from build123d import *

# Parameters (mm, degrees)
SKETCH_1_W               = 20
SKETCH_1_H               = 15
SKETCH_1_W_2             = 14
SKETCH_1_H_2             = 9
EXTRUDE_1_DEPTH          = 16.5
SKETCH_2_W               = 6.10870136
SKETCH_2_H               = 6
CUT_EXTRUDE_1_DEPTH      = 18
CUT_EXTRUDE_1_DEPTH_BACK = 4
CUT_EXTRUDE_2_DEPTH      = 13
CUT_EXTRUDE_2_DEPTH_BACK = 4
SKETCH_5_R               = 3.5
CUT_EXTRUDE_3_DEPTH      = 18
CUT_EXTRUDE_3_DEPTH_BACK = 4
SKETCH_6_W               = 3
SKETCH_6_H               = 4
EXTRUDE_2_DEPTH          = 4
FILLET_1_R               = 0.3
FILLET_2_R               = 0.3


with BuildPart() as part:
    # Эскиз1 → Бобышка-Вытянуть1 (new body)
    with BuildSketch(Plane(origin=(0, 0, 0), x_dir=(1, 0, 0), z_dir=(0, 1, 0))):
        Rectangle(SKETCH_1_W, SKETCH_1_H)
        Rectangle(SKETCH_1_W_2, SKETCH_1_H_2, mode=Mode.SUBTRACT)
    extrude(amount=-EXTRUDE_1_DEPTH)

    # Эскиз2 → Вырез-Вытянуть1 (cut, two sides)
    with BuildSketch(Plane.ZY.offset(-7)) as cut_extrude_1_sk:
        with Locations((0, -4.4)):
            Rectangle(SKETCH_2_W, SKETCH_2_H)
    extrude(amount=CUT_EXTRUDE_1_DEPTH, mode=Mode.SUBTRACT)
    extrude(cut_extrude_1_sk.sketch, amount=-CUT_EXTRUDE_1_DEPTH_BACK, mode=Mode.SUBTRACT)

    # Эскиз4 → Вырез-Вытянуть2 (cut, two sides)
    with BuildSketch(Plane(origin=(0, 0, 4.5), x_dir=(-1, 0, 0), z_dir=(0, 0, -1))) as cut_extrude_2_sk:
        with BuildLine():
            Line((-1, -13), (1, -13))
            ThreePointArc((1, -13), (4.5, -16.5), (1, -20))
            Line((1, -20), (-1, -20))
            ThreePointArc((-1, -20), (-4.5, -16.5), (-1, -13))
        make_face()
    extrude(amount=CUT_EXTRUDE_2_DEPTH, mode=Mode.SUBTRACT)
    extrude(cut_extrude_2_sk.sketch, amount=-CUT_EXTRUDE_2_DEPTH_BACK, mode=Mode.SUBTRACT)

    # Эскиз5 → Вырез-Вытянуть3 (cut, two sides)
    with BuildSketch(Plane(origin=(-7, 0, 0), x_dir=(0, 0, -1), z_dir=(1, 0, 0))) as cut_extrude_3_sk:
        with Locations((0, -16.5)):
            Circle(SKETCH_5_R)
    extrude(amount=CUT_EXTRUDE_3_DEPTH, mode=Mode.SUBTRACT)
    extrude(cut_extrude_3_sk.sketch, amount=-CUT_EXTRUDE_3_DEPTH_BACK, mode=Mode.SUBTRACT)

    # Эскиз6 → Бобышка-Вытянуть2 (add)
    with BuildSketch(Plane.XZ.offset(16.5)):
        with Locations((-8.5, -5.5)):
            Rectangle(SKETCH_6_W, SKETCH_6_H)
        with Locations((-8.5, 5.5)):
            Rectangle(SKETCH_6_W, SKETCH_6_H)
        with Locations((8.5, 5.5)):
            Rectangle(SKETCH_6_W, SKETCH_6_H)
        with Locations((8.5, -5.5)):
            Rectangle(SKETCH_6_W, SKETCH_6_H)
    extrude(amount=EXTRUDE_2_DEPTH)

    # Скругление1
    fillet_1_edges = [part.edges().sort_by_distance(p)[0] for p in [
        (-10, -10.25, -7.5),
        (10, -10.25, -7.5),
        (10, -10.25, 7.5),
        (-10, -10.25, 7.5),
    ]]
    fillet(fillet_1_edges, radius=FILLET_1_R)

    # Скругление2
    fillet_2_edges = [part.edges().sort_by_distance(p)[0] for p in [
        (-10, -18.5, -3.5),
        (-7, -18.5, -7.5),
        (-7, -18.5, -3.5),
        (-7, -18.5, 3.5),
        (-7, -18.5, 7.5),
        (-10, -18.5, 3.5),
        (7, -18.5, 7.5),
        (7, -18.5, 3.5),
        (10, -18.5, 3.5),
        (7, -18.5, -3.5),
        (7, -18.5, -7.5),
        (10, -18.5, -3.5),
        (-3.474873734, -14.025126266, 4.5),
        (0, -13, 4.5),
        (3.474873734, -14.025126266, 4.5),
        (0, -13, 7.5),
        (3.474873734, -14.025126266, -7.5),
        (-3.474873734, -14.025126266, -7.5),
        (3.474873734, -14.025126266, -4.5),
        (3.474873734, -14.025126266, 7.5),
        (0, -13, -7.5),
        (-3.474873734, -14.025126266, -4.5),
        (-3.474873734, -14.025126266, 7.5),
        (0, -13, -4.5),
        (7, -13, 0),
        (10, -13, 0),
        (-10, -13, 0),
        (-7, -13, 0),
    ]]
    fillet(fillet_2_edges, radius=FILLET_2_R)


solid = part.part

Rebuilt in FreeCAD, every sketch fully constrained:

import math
import FreeCAD as App
import Part
import Sketcher
Q = App.Units.Quantity


def edges_at(feature, points):
    """Names of the edges that pass closest to the given points."""
    edges = feature.Shape.Edges
    near = lambda p: min(range(len(edges)), key=lambda i: edges[i].distToShape(Part.Vertex(*p))[0])
    return sorted({f"Edge{near(p) + 1}" for p in points})

doc = App.newDocument("Part")
body = doc.addObject("PartDesign::Body", "Body")

sketch1 = doc.addObject("Sketcher::SketchObject", "Sketch")
body.addObject(sketch1)
sketch1.AttachmentSupport = (doc.XZ_Plane, [""])
sketch1.MapMode = "FlatFace"
sketch1.addGeometry(Part.LineSegment(App.Vector(-10, -8, 0), App.Vector(-10, 8, 0)), False)
sketch1.addGeometry(Part.LineSegment(App.Vector(-10, 8, 0), App.Vector(10, 8, 0)), False)
sketch1.addGeometry(Part.LineSegment(App.Vector(10, 8, 0), App.Vector(10, -8, 0)), False)
sketch1.addGeometry(Part.LineSegment(App.Vector(10, -8, 0), App.Vector(-10, -8, 0)), False)
sketch1.addGeometry(Part.LineSegment(App.Vector(7, 4, 0), App.Vector(-7, 4, 0)), False)
sketch1.addGeometry(Part.LineSegment(App.Vector(-7, 4, 0), App.Vector(-7, -4, 0)), False)
sketch1.addGeometry(Part.LineSegment(App.Vector(-7, -4, 0), App.Vector(7, -4, 0)), False)
sketch1.addGeometry(Part.LineSegment(App.Vector(7, -4, 0), App.Vector(7, 4, 0)), False)
sketch1.addConstraint(Sketcher.Constraint("Coincident", 0, 2, 1, 1))
sketch1.addConstraint(Sketcher.Constraint("Coincident", 1, 2, 2, 1))
sketch1.addConstraint(Sketcher.Constraint("Coincident", 2, 2, 3, 1))
sketch1.addConstraint(Sketcher.Constraint("Coincident", 3, 2, 0, 1))
sketch1.addConstraint(Sketcher.Constraint("Coincident", 4, 2, 5, 1))
sketch1.addConstraint(Sketcher.Constraint("Coincident", 5, 2, 6, 1))
sketch1.addConstraint(Sketcher.Constraint("Coincident", 6, 2, 7, 1))
sketch1.addConstraint(Sketcher.Constraint("Coincident", 7, 2, 4, 1))
sketch1.addConstraint(Sketcher.Constraint("Vertical", 0))
sketch1.addConstraint(Sketcher.Constraint("Horizontal", 1))
sketch1.addConstraint(Sketcher.Constraint("Vertical", 2))
sketch1.addConstraint(Sketcher.Constraint("Horizontal", 3))
sketch1.addConstraint(Sketcher.Constraint("Horizontal", 4))
sketch1.addConstraint(Sketcher.Constraint("Vertical", 5))
sketch1.addConstraint(Sketcher.Constraint("Horizontal", 6))
sketch1.addConstraint(Sketcher.Constraint("Vertical", 7))
sketch1.addConstraint(Sketcher.Constraint("Symmetric", 0, 2, 2, 2, -1, 1))
sketch1.addConstraint(Sketcher.Constraint("Symmetric", 4, 2, 6, 2, -1, 1))
sketch1.addConstraint(Sketcher.Constraint("DistanceX", 1, 1, 1, 2, Q("20 mm")))
sketch1.addConstraint(Sketcher.Constraint("DistanceX", 4, 2, 4, 1, Q("14 mm")))
sketch1.addConstraint(Sketcher.Constraint("DistanceY", 0, 1, 0, 2, Q("15 mm")))
sketch1.addConstraint(Sketcher.Constraint("DistanceY", 5, 2, 5, 1, Q("9 mm")))
pad1 = doc.addObject("PartDesign::Pad", "Pad")
body.addObject(pad1)
pad1.Profile = sketch1
pad1.Length = 16.5

sketch2 = doc.addObject("Sketcher::SketchObject", "Sketch001")
body.addObject(sketch2)
sketch2.AttachmentSupport = (doc.YZ_Plane, [""])
sketch2.MapMode = "FlatFace"
sketch2.AttachmentOffset = App.Placement(App.Vector(0, 0, 7), App.Rotation())
sketch2.addGeometry(Part.LineSegment(App.Vector(-1, -3, 0), App.Vector(-7, -3, 0)), False)
sketch2.addGeometry(Part.LineSegment(App.Vector(-7, -3, 0), App.Vector(-7, 3, 0)), False)
sketch2.addGeometry(Part.LineSegment(App.Vector(-7, 3, 0), App.Vector(-1, 3, 0)), False)
sketch2.addGeometry(Part.LineSegment(App.Vector(-1, 3, 0), App.Vector(-1, -3, 0)), False)
sketch2.addConstraint(Sketcher.Constraint("Coincident", 0, 2, 1, 1))
sketch2.addConstraint(Sketcher.Constraint("Coincident", 1, 2, 2, 1))
sketch2.addConstraint(Sketcher.Constraint("Coincident", 2, 2, 3, 1))
sketch2.addConstraint(Sketcher.Constraint("Coincident", 3, 2, 0, 1))
sketch2.addConstraint(Sketcher.Constraint("Horizontal", 0))
sketch2.addConstraint(Sketcher.Constraint("Vertical", 1))
sketch2.addConstraint(Sketcher.Constraint("Horizontal", 2))
sketch2.addConstraint(Sketcher.Constraint("Vertical", 3))
sketch2.addConstraint(Sketcher.Constraint("DistanceX", 0, 2, 0, 1, Q("6 mm")))
sketch2.addConstraint(Sketcher.Constraint("DistanceX", 0, 2, -1, 1, Q("7.4 mm")))
sketch2.addConstraint(Sketcher.Constraint("DistanceY", 1, 1, 1, 2, Q("6.108701 mm")))
sketch2.addConstraint(Sketcher.Constraint("DistanceY", 0, 2, -1, 1, Q("3.054351 mm")))
pocket1 = doc.addObject("PartDesign::Pocket", "Pocket")
body.addObject(pocket1)
pocket1.Profile = sketch2
pocket1.Type = "ThroughAll"
pocket1.Midplane = True

sketch3 = doc.addObject("Sketcher::SketchObject", "Sketch002")
body.addObject(sketch3)
sketch3.AttachmentSupport = (doc.XY_Plane, [""])
sketch3.MapMode = "FlatFace"
sketch3.AttachmentOffset = App.Placement(App.Vector(0, 0, 4.5), App.Rotation())
sketch3.addGeometry(Part.LineSegment(App.Vector(-1, -13, 0), App.Vector(1, -13, 0)), False)
sketch3.addGeometry(Part.ArcOfCircle(Part.Circle(App.Vector(1, -16.5, 0), App.Vector(0, 0, 1), 3.5), math.radians(-90), math.radians(90)), False)
sketch3.addGeometry(Part.LineSegment(App.Vector(1, -20, 0), App.Vector(-1, -20, 0)), False)
sketch3.addGeometry(Part.ArcOfCircle(Part.Circle(App.Vector(-1, -16.5, 0), App.Vector(0, 0, 1), 3.5), math.radians(90), math.radians(270)), False)
sketch3.addConstraint(Sketcher.Constraint("Tangent", 0, 2, 1, 2))
sketch3.addConstraint(Sketcher.Constraint("Tangent", 1, 1, 2, 1))
sketch3.addConstraint(Sketcher.Constraint("Tangent", 2, 2, 3, 2))
sketch3.addConstraint(Sketcher.Constraint("Tangent", 3, 1, 0, 1))
sketch3.addConstraint(Sketcher.Constraint("Horizontal", 0))
sketch3.addConstraint(Sketcher.Constraint("Horizontal", 2))
sketch3.addConstraint(Sketcher.Constraint("Radius", 1, Q("3.5 mm")))
sketch3.addConstraint(Sketcher.Constraint("DistanceX", 0, 1, 0, 2, Q("2 mm")))
sketch3.addConstraint(Sketcher.Constraint("DistanceX", -1, 1, 1, 3, Q("1 mm")))
sketch3.addConstraint(Sketcher.Constraint("DistanceY", 0, 2, -1, 1, Q("13 mm")))
pocket2 = doc.addObject("PartDesign::Pocket", "Pocket001")
body.addObject(pocket2)
pocket2.Profile = sketch3
pocket2.Type = "ThroughAll"
pocket2.Midplane = True

sketch4 = doc.addObject("Sketcher::SketchObject", "Sketch003")
body.addObject(sketch4)
sketch4.AttachmentSupport = (doc.YZ_Plane, [""])
sketch4.MapMode = "FlatFace"
sketch4.AttachmentOffset = App.Placement(App.Vector(0, 0, -7), App.Rotation())
sketch4.addGeometry(Part.Circle(App.Vector(-16.5, 0, 0), App.Vector(0, 0, 1), 3.5), False)
sketch4.addConstraint(Sketcher.Constraint("PointOnObject", 0, 3, -1))
sketch4.addConstraint(Sketcher.Constraint("Diameter", 0, Q("7 mm")))
sketch4.addConstraint(Sketcher.Constraint("DistanceX", 0, 3, -1, 1, Q("16.5 mm")))
pocket3 = doc.addObject("PartDesign::Pocket", "Pocket002")
body.addObject(pocket3)
pocket3.Profile = sketch4
pocket3.Type = "ThroughAll"
pocket3.Midplane = True

sketch5 = doc.addObject("Sketcher::SketchObject", "Sketch004")
body.addObject(sketch5)
sketch5.AttachmentSupport = (doc.XZ_Plane, [""])
sketch5.MapMode = "FlatFace"
sketch5.AttachmentOffset = App.Placement(App.Vector(0, 0, 16.5), App.Rotation())
sketch5.addGeometry(Part.LineSegment(App.Vector(-10, -3.5, 0), App.Vector(-10, -7.5, 0)), False)
sketch5.addGeometry(Part.LineSegment(App.Vector(-10, -7.5, 0), App.Vector(-7, -7.5, 0)), False)
sketch5.addGeometry(Part.LineSegment(App.Vector(-7, -7.5, 0), App.Vector(-7, -3.5, 0)), False)
sketch5.addGeometry(Part.LineSegment(App.Vector(-7, -3.5, 0), App.Vector(-10, -3.5, 0)), False)
sketch5.addGeometry(Part.LineSegment(App.Vector(-10, 7.5, 0), App.Vector(-10, 3.5, 0)), False)
sketch5.addGeometry(Part.LineSegment(App.Vector(-10, 3.5, 0), App.Vector(-7, 3.5, 0)), False)
sketch5.addGeometry(Part.LineSegment(App.Vector(-7, 3.5, 0), App.Vector(-7, 7.5, 0)), False)
sketch5.addGeometry(Part.LineSegment(App.Vector(-7, 7.5, 0), App.Vector(-10, 7.5, 0)), False)
sketch5.addGeometry(Part.LineSegment(App.Vector(7, 7.5, 0), App.Vector(7, 3.5, 0)), False)
sketch5.addGeometry(Part.LineSegment(App.Vector(7, 3.5, 0), App.Vector(10, 3.5, 0)), False)
sketch5.addGeometry(Part.LineSegment(App.Vector(10, 3.5, 0), App.Vector(10, 7.5, 0)), False)
sketch5.addGeometry(Part.LineSegment(App.Vector(10, 7.5, 0), App.Vector(7, 7.5, 0)), False)
sketch5.addGeometry(Part.LineSegment(App.Vector(7, -3.5, 0), App.Vector(7, -7.5, 0)), False)
sketch5.addGeometry(Part.LineSegment(App.Vector(7, -7.5, 0), App.Vector(10, -7.5, 0)), False)
sketch5.addGeometry(Part.LineSegment(App.Vector(10, -7.5, 0), App.Vector(10, -3.5, 0)), False)
sketch5.addGeometry(Part.LineSegment(App.Vector(10, -3.5, 0), App.Vector(7, -3.5, 0)), False)
sketch5.addConstraint(Sketcher.Constraint("Coincident", 0, 2, 1, 1))
sketch5.addConstraint(Sketcher.Constraint("Coincident", 1, 2, 2, 1))
sketch5.addConstraint(Sketcher.Constraint("Coincident", 2, 2, 3, 1))
sketch5.addConstraint(Sketcher.Constraint("Coincident", 3, 2, 0, 1))
sketch5.addConstraint(Sketcher.Constraint("Coincident", 4, 2, 5, 1))
sketch5.addConstraint(Sketcher.Constraint("Coincident", 5, 2, 6, 1))
sketch5.addConstraint(Sketcher.Constraint("Coincident", 6, 2, 7, 1))
sketch5.addConstraint(Sketcher.Constraint("Coincident", 7, 2, 4, 1))
sketch5.addConstraint(Sketcher.Constraint("Coincident", 8, 2, 9, 1))
sketch5.addConstraint(Sketcher.Constraint("Coincident", 9, 2, 10, 1))
sketch5.addConstraint(Sketcher.Constraint("Coincident", 10, 2, 11, 1))
sketch5.addConstraint(Sketcher.Constraint("Coincident", 11, 2, 8, 1))
sketch5.addConstraint(Sketcher.Constraint("Coincident", 12, 2, 13, 1))
sketch5.addConstraint(Sketcher.Constraint("Coincident", 13, 2, 14, 1))
sketch5.addConstraint(Sketcher.Constraint("Coincident", 14, 2, 15, 1))
sketch5.addConstraint(Sketcher.Constraint("Coincident", 15, 2, 12, 1))
sketch5.addConstraint(Sketcher.Constraint("Vertical", 0))
sketch5.addConstraint(Sketcher.Constraint("Horizontal", 1))
sketch5.addConstraint(Sketcher.Constraint("Vertical", 2))
sketch5.addConstraint(Sketcher.Constraint("Horizontal", 3))
sketch5.addConstraint(Sketcher.Constraint("Vertical", 4))
sketch5.addConstraint(Sketcher.Constraint("Horizontal", 5))
sketch5.addConstraint(Sketcher.Constraint("Vertical", 6))
sketch5.addConstraint(Sketcher.Constraint("Horizontal", 7))
sketch5.addConstraint(Sketcher.Constraint("Vertical", 8))
sketch5.addConstraint(Sketcher.Constraint("Horizontal", 9))
sketch5.addConstraint(Sketcher.Constraint("Vertical", 10))
sketch5.addConstraint(Sketcher.Constraint("Horizontal", 11))
sketch5.addConstraint(Sketcher.Constraint("Vertical", 12))
sketch5.addConstraint(Sketcher.Constraint("Horizontal", 13))
sketch5.addConstraint(Sketcher.Constraint("Vertical", 14))
sketch5.addConstraint(Sketcher.Constraint("Horizontal", 15))
sketch5.addConstraint(Sketcher.Constraint("Symmetric", 2, 2, 8, 2, -1, 1))
sketch5.addConstraint(Sketcher.Constraint("Symmetric", 0, 2, 10, 2, -1, 1))
sketch5.addConstraint(Sketcher.Constraint("Symmetric", 6, 2, 12, 2, -1, 1))
sketch5.addConstraint(Sketcher.Constraint("Symmetric", 4, 2, 14, 2, -1, 1))
sketch5.addConstraint(Sketcher.Constraint("Symmetric", 5, 2, 8, 2, -2))
sketch5.addConstraint(Sketcher.Constraint("Symmetric", 7, 2, 10, 2, -2))
sketch5.addConstraint(Sketcher.Constraint("DistanceX", 1, 1, 1, 2, Q("3 mm")))
sketch5.addConstraint(Sketcher.Constraint("DistanceY", 0, 2, 0, 1, Q("4 mm")))
sketch5.addConstraint(Sketcher.Constraint("DistanceX", 0, 2, -1, 1, Q("10 mm")))
sketch5.addConstraint(Sketcher.Constraint("DistanceY", 3, 2, 4, 2, Q("7 mm")))
pad2 = doc.addObject("PartDesign::Pad", "Pad001")
body.addObject(pad2)
pad2.Profile = sketch5
pad2.Length = 4
doc.recompute()

fillet = doc.addObject("PartDesign::Fillet", "Fillet")
body.addObject(fillet)
fillet.Base = (pad2, edges_at(pad2, [
    (-10, -10.25, -7.5),
    (10, -10.25, -7.5),
    (10, -10.25, 7.5),
    (-10, -10.25, 7.5),
]))
fillet.Radius = 0.3
doc.recompute()

fillet2 = doc.addObject("PartDesign::Fillet", "Fillet001")
body.addObject(fillet2)
fillet2.Base = (fillet, edges_at(fillet, [
    (-10, -18.5, -3.5),
    (-7, -18.5, -7.5),
    (-7, -18.5, -3.5),
    (-7, -18.5, 3.5),
    (-7, -18.5, 7.5),
    (-10, -18.5, 3.5),
    (7, -18.5, 7.5),
    (7, -18.5, 3.5),
    (10, -18.5, 3.5),
    (7, -18.5, -3.5),
    (7, -18.5, -7.5),
    (10, -18.5, -3.5),
    (-3.475, -14.025, 4.5),
    (0, -13, 4.5),
    (3.475, -14.025, 4.5),
    (0, -13, 7.5),
    (3.475, -14.025, -7.5),
    (-3.475, -14.025, -7.5),
    (3.475, -14.025, -4.5),
    (3.475, -14.025, 7.5),
    (0, -13, -7.5),
    (-3.475, -14.025, -4.5),
    (-3.475, -14.025, 7.5),
    (0, -13, -4.5),
    (7, -13, 0),
    (10, -13, 0),
    (-10, -13, 0),
    (-7, -13, 0),
]))
fillet2.Radius = 0.3

doc.recompute()
